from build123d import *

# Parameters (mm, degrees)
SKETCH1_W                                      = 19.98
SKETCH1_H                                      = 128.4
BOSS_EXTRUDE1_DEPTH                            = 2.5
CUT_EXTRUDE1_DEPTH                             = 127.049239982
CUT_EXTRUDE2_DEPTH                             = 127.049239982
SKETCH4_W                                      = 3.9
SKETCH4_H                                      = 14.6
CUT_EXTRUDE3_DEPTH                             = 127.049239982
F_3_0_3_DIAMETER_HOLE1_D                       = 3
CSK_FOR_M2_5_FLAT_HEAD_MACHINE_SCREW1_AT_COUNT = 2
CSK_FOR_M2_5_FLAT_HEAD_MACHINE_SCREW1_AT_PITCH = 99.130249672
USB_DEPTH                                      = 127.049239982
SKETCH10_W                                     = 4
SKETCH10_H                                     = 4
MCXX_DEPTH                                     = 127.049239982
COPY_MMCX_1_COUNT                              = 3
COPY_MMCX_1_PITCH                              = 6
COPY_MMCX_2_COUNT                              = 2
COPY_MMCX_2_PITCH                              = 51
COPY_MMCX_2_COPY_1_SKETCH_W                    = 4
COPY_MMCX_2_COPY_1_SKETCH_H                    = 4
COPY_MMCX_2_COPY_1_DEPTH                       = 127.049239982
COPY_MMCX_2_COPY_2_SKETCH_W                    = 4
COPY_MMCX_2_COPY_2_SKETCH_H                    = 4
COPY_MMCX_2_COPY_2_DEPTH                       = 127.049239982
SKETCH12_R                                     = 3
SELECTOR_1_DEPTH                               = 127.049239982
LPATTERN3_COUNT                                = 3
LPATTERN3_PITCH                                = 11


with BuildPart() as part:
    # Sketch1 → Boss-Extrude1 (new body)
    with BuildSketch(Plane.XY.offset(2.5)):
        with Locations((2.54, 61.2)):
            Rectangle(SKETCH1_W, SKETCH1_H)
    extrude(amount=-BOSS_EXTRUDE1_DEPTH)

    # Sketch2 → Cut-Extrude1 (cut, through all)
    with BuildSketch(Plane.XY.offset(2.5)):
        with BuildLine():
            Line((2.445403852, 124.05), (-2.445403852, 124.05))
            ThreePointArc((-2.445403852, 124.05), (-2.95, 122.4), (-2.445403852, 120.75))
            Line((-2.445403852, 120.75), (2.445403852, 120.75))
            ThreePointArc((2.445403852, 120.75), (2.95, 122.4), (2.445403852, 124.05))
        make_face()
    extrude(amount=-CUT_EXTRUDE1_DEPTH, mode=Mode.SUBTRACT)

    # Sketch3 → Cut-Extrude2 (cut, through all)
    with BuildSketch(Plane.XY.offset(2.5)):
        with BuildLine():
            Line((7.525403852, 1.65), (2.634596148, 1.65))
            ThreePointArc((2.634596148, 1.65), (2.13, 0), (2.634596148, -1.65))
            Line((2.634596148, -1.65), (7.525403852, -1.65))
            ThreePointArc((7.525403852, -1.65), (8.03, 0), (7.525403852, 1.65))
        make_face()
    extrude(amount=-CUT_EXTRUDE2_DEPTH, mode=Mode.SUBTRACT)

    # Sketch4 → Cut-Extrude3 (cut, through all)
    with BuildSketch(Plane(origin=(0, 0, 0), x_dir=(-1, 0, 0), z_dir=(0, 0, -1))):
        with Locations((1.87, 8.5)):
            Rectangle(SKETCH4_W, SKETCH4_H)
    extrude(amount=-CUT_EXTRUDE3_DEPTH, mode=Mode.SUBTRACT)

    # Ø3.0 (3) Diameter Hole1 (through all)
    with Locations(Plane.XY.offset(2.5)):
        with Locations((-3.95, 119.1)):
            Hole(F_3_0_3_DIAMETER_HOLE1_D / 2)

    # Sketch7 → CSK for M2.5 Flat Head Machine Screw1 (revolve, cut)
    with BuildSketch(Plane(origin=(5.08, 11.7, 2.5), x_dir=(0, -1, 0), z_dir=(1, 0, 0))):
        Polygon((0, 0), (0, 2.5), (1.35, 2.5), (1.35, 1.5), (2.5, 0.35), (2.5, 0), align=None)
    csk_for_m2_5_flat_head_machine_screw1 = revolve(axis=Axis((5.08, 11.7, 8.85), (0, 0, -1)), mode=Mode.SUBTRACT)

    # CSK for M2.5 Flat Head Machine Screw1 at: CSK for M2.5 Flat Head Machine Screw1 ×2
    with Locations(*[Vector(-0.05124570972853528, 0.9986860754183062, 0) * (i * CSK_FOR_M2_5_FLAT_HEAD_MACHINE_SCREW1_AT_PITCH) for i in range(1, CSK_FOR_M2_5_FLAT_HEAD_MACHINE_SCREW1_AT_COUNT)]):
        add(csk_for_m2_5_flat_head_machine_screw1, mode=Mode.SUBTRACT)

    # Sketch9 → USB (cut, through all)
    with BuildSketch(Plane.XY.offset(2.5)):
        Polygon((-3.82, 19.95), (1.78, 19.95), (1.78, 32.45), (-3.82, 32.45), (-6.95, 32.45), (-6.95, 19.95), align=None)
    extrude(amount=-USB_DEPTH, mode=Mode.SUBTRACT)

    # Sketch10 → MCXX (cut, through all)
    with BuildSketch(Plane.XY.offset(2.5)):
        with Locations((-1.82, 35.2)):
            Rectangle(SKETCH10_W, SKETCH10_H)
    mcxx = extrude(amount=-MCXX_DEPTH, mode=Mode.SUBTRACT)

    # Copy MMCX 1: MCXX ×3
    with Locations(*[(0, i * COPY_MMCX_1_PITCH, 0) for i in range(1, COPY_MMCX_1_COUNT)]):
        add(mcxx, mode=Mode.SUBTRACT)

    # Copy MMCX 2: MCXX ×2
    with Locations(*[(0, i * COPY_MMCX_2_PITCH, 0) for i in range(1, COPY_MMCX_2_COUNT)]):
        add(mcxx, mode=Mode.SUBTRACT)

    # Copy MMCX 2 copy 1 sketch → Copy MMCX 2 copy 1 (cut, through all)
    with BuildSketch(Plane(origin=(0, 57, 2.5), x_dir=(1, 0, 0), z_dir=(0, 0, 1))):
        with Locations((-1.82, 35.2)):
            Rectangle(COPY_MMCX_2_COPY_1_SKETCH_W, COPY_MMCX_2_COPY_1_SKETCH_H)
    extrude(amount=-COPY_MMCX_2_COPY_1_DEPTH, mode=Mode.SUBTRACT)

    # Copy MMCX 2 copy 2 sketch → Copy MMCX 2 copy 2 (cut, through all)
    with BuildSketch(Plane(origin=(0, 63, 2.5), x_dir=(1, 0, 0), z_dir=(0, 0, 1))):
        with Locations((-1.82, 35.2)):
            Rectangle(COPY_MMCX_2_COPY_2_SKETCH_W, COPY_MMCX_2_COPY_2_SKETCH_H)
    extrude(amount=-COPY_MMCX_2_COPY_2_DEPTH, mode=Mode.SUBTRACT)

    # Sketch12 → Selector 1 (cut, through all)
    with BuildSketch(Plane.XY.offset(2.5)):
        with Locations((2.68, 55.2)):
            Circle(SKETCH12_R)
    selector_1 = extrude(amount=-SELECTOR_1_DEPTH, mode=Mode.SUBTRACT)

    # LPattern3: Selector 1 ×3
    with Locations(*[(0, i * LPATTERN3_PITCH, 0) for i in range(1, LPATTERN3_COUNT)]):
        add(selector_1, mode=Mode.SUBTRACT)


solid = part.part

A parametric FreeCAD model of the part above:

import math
import FreeCAD as App
import Part
import Sketcher

V = App.Vector
Q = App.Units.Quantity

doc = App.newDocument("Part")
body = doc.addObject("PartDesign::Body", "Body")

# Sketch on XY plane
sketch1 = body.newObject("Sketcher::SketchObject", "Sketch")
sketch1.AttachmentSupport = (doc.getObject("XY_Plane"), [""])
sketch1.MapMode = "FlatFace"
sketch1.AttachmentOffset = App.Placement(V(0, 0, 2.5), App.Rotation())
sketch1.addGeometry(Part.LineSegment(V(-7, 125, 0), V(-7, -3, 0)), False)
sketch1.addGeometry(Part.LineSegment(V(-7, -3, 0), V(13, -3, 0)), False)
sketch1.addGeometry(Part.LineSegment(V(13, -3, 0), V(13, 125, 0)), False)
sketch1.addGeometry(Part.LineSegment(V(13, 125, 0), V(-7, 125, 0)), False)
sketch1.addConstraint(Sketcher.Constraint("Coincident", 0, 2, 1, 1))
sketch1.addConstraint(Sketcher.Constraint("Coincident", 1, 2, 2, 1))
sketch1.addConstraint(Sketcher.Constraint("Coincident", 2, 2, 3, 1))
sketch1.addConstraint(Sketcher.Constraint("Coincident", 3, 2, 0, 1))
sketch1.addConstraint(Sketcher.Constraint("Vertical", 0))
sketch1.addConstraint(Sketcher.Constraint("Horizontal", 1))
sketch1.addConstraint(Sketcher.Constraint("Vertical", 2))
sketch1.addConstraint(Sketcher.Constraint("Horizontal", 3))
sketch1.addConstraint(Sketcher.Constraint("DistanceY", 0, 2, 0, 1, Q("128.4 mm")))
sketch1.addConstraint(Sketcher.Constraint("DistanceY", 0, 2, -1, 1, Q("3 mm")))
sketch1.addConstraint(Sketcher.Constraint("DistanceX", 1, 1, 1, 2, Q("19.98 mm")))
sketch1.addConstraint(Sketcher.Constraint("DistanceX", 0, 2, -1, 1, Q("7.45 mm")))
pad1 = body.newObject("PartDesign::Pad", "Pad")
pad1.Profile = sketch1
pad1.Length = 2.5
pad1.Reversed = True

# Sketch on XY plane
sketch2 = body.newObject("Sketcher::SketchObject", "Sketch001")
sketch2.AttachmentSupport = (doc.getObject("XY_Plane"), [""])
sketch2.MapMode = "FlatFace"
sketch2.AttachmentOffset = App.Placement(V(0, 0, 2.5), App.Rotation())
sketch2.addGeometry(Part.LineSegment(V(2.4, 124, 0), V(-2.4, 124, 0)), False)
sketch2.addGeometry(Part.ArcOfCircle(Part.Circle(V(0, 122.4, 0), V(0, 0, 1), 2.9), math.radians(146), math.radians(214)), False)
sketch2.addGeometry(Part.LineSegment(V(-2.4, 120.8, 0), V(2.4, 120.8, 0)), False)
sketch2.addGeometry(Part.ArcOfCircle(Part.Circle(V(0, 122.4, 0), V(0, 0, 1), 2.9), math.radians(-34), math.radians(34)), False)
sketch2.addConstraint(Sketcher.Constraint("Coincident", 0, 2, 1, 1))
sketch2.addConstraint(Sketcher.Constraint("Coincident", 1, 2, 2, 1))
sketch2.addConstraint(Sketcher.Constraint("Coincident", 2, 2, 3, 1))
sketch2.addConstraint(Sketcher.Constraint("Coincident", 3, 2, 0, 1))
sketch2.addConstraint(Sketcher.Constraint("Horizontal", 0))
sketch2.addConstraint(Sketcher.Constraint("Horizontal", 2))
sketch2.addConstraint(Sketcher.Constraint("Coincident", 3, 3, 1, 3))
sketch2.addConstraint(Sketcher.Constraint("Equal", 1, 3))
sketch2.addConstraint(Sketcher.Constraint("PointOnObject", 1, 3, -2))
sketch2.addConstraint(Sketcher.Constraint("Vertical", 0, 2, 1, 2))
sketch2.addConstraint(Sketcher.Constraint("Radius", 1, Q("2.95 mm")))
sketch2.addConstraint(Sketcher.Constraint("DistanceY", -1, 1, 1, 3, Q("122.4 mm")))
sketch2.addConstraint(Sketcher.Constraint("DistanceY", 1, 2, 0, 2, Q("3.3 mm")))
pocket1 = body.newObject("PartDesign::Pocket", "Pocket")
pocket1.Profile = sketch2
pocket1.Type = "ThroughAll"

# Sketch on XY plane
sketch3 = body.newObject("Sketcher::SketchObject", "Sketch002")
sketch3.AttachmentSupport = (doc.getObject("XY_Plane"), [""])
sketch3.MapMode = "FlatFace"
sketch3.AttachmentOffset = App.Placement(V(0, 0, 2.5), App.Rotation())
sketch3.addGeometry(Part.LineSegment(V(7.5, 1.6, 0), V(2.6, 1.6, 0)), False)
sketch3.addGeometry(Part.ArcOfCircle(Part.Circle(V(5.1, 0, 0), V(0, 0, 1), 2.9), math.radians(146), math.radians(214)), False)
sketch3.addGeometry(Part.LineSegment(V(2.6, -1.6, 0), V(7.5, -1.6, 0)), False)
sketch3.addGeometry(Part.ArcOfCircle(Part.Circle(V(5.1, 0, 0), V(0, 0, 1), 2.9), math.radians(-34), math.radians(34)), False)
sketch3.addConstraint(Sketcher.Constraint("Coincident", 0, 2, 1, 1))
sketch3.addConstraint(Sketcher.Constraint("Coincident", 1, 2, 2, 1))
sketch3.addConstraint(Sketcher.Constraint("Coincident", 2, 2, 3, 1))
sketch3.addConstraint(Sketcher.Constraint("Coincident", 3, 2, 0, 1))
sketch3.addConstraint(Sketcher.Constraint("Horizontal", 0))
sketch3.addConstraint(Sketcher.Constraint("Horizontal", 2))
sketch3.addConstraint(Sketcher.Constraint("Coincident", 3, 3, 1, 3))
sketch3.addConstraint(Sketcher.Constraint("Equal", 1, 3))
sketch3.addConstraint(Sketcher.Constraint("Symmetric", 0, 2, 1, 2, -1))
sketch3.addConstraint(Sketcher.Constraint("Radius", 1, Q("2.95 mm")))
sketch3.addConstraint(Sketcher.Constraint("DistanceY", 1, 2, 0, 2, Q("3.3 mm")))
sketch3.addConstraint(Sketcher.Constraint("DistanceX", -1, 1, 1, 3, Q("5.08 mm")))
pocket2 = body.newObject("PartDesign::Pocket", "Pocket001")
pocket2.Profile = sketch3
pocket2.Type = "ThroughAll"

# Sketch on XY plane
sketch4 = body.newObject("Sketcher::SketchObject", "Sketch003")
sketch4.AttachmentSupport = (doc.getObject("XY_Plane"), [""])
sketch4.MapMode = "FlatFace"
sketch4.addGeometry(Part.LineSegment(V(0.1, 15.8, 0), V(0.1, 1.2, 0)), False)
sketch4.addGeometry(Part.LineSegment(V(0.1, 1.2, 0), V(-3.8, 1.2, 0)), False)
sketch4.addGeometry(Part.LineSegment(V(-3.8, 1.2, 0), V(-3.8, 15.8, 0)), False)
sketch4.addGeometry(Part.LineSegment(V(-3.8, 15.8, 0), V(0.1, 15.8, 0)), False)
sketch4.addConstraint(Sketcher.Constraint("Coincident", 0, 2, 1, 1))
sketch4.addConstraint(Sketcher.Constraint("Coincident", 1, 2, 2, 1))
sketch4.addConstraint(Sketcher.Constraint("Coincident", 2, 2, 3, 1))
sketch4.addConstraint(Sketcher.Constraint("Coincident", 3, 2, 0, 1))
sketch4.addConstraint(Sketcher.Constraint("Vertical", 0))
sketch4.addConstraint(Sketcher.Constraint("Horizontal", 1))
sketch4.addConstraint(Sketcher.Constraint("Vertical", 2))
sketch4.addConstraint(Sketcher.Constraint("Horizontal", 3))
sketch4.addConstraint(Sketcher.Constraint("DistanceX", 1, 2, 1, 1, Q("3.9 mm")))
sketch4.addConstraint(Sketcher.Constraint("DistanceY", 0, 2, 0, 1, Q("14.6 mm")))
sketch4.addConstraint(Sketcher.Constraint("DistanceY", -1, 1, 0, 2, Q("1.2 mm")))
sketch4.addConstraint(Sketcher.Constraint("DistanceX", -1, 1, 0, 2, Q("0.08 mm")))
pocket3 = body.newObject("PartDesign::Pocket", "Pocket002")
pocket3.Profile = sketch4
pocket3.Type = "ThroughAll"
pocket3.Reversed = True

# Sketch on XY plane
sketch5 = body.newObject("Sketcher::SketchObject", "Sketch004")
sketch5.AttachmentSupport = (doc.getObject("XY_Plane"), [""])
sketch5.MapMode = "FlatFace"
sketch5.AttachmentOffset = App.Placement(V(0, 0, 2.5), App.Rotation())
sketch5.addGeometry(Part.Circle(V(-4, 119.1, 0), V(0, 0, 1), 1.5), False)
sketch5.addConstraint(Sketcher.Constraint("Diameter", 0, Q("3 mm")))
sketch5.addConstraint(Sketcher.Constraint("DistanceY", -1, 1, 0, 3, Q("119.1 mm")))
sketch5.addConstraint(Sketcher.Constraint("DistanceX", 0, 3, -1, 1, Q("3.95 mm")))
doc.recompute()
hole = body.newObject("PartDesign::Hole", "Hole")
hole.Profile = sketch5
hole.ThreadType = "None"
hole.Diameter = 3
hole.DepthType = "ThroughAll"

# Sketch on YZ plane
sketch6 = body.newObject("Sketcher::SketchObject", "Sketch005")
sketch6.AttachmentSupport = (doc.getObject("YZ_Plane"), [""])
sketch6.MapMode = "FlatFace"
sketch6.AttachmentOffset = App.Placement(V(0, 0, 5.08), App.Rotation())
sketch6.addGeometry(Part.LineSegment(V(11.7, 0, 0), V(11.7, 2.5, 0)), False)
sketch6.addGeometry(Part.LineSegment(V(11.7, 2.5, 0), V(9.2, 2.5, 0)), False)
sketch6.addGeometry(Part.LineSegment(V(9.2, 2.5, 0), V(9.2, 2.15, 0)), False)
sketch6.addGeometry(Part.LineSegment(V(9.2, 2.15, 0), V(10.35, 1, 0)), False)
sketch6.addGeometry(Part.LineSegment(V(10.35, 1, 0), V(10.35, 0, 0)), False)
sketch6.addGeometry(Part.LineSegment(V(10.35, 0, 0), V(11.7, 0, 0)), False)
sketch6.addGeometry(Part.LineSegment(V(11.7, 2.5, 0), V(11.7, 0, 0)), True)  # axis
sketch6.addConstraint(Sketcher.Constraint("Coincident", 0, 2, 1, 1))
sketch6.addConstraint(Sketcher.Constraint("Coincident", 1, 2, 2, 1))
sketch6.addConstraint(Sketcher.Constraint("Coincident", 2, 2, 3, 1))
sketch6.addConstraint(Sketcher.Constraint("Coincident", 3, 2, 4, 1))
sketch6.addConstraint(Sketcher.Constraint("Coincident", 4, 2, 5, 1))
sketch6.addConstraint(Sketcher.Constraint("Coincident", 5, 2, 0, 1))
sketch6.addConstraint(Sketcher.Constraint("Vertical", 0))
sketch6.addConstraint(Sketcher.Constraint("Horizontal", 1))
sketch6.addConstraint(Sketcher.Constraint("Vertical", 2))
sketch6.addConstraint(Sketcher.Constraint("Vertical", 4))
sketch6.addConstraint(Sketcher.Constraint("Horizontal", 5))
sketch6.addConstraint(Sketcher.Constraint("Vertical", 6))
sketch6.addConstraint(Sketcher.Constraint("Coincident", 6, 1, 0, 2))
sketch6.addConstraint(Sketcher.Constraint("PointOnObject", 4, 2, -1))
sketch6.addConstraint(Sketcher.Constraint("PointOnObject", 6, 2, -1))
sketch6.addConstraint(Sketcher.Constraint("Equal", 1, 0))
sketch6.addConstraint(Sketcher.Constraint("DistanceY", 4, 2, 4, 1, Q("1 mm")))
sketch6.addConstraint(Sketcher.Constraint("Angle", 3, Q("-45 deg")))
sketch6.addConstraint(Sketcher.Constraint("DistanceX", 1, 2, 1, 1, Q("2.5 mm")))
sketch6.addConstraint(Sketcher.Constraint("DistanceX", 5, 1, 5, 2, Q("1.35 mm")))
sketch6.addConstraint(Sketcher.Constraint("DistanceX", -1, 1, 0, 2, Q("11.7 mm")))
groove = body.newObject("PartDesign::Groove", "Groove")
groove.Profile = sketch6
groove.ReferenceAxis = (sketch6, ["Axis0"])
groove.Angle = 360
doc.recompute()

datumline = body.newObject("PartDesign::Line", "DatumLine")
datumline.Placement = App.Placement(V(0, 0, 0), App.Rotation(V(0, 0, 1), V(-0.05124571, 0.998686075, 0)))
linearpattern = body.newObject("PartDesign::LinearPattern", "LinearPattern")
linearpattern.Originals = [groove]
linearpattern.Direction = (datumline, [""])
linearpattern.Mode = "offset"
linearpattern.Offset = 99.13025
linearpattern.Occurrences = 2
body.Tip = linearpattern

# Sketch on XY plane
sketch7 = body.newObject("Sketcher::SketchObject", "Sketch006")
sketch7.AttachmentSupport = (doc.getObject("XY_Plane"), [""])
sketch7.MapMode = "FlatFace"
sketch7.AttachmentOffset = App.Placement(V(0, 0, 2.5), App.Rotation())
sketch7.addGeometry(Part.LineSegment(V(2, 20, 0), V(2, 32, 0)), False)
sketch7.addGeometry(Part.LineSegment(V(2, 32, 0), V(-7, 32, 0)), False)
sketch7.addGeometry(Part.LineSegment(V(-7, 32, 0), V(-7, 20, 0)), False)
sketch7.addGeometry(Part.LineSegment(V(-7, 20, 0), V(2, 20, 0)), False)
sketch7.addConstraint(Sketcher.Constraint("Coincident", 0, 2, 1, 1))
sketch7.addConstraint(Sketcher.Constraint("Coincident", 1, 2, 2, 1))
sketch7.addConstraint(Sketcher.Constraint("Coincident", 2, 2, 3, 1))
sketch7.addConstraint(Sketcher.Constraint("Coincident", 3, 2, 0, 1))
sketch7.addConstraint(Sketcher.Constraint("Vertical", 0))
sketch7.addConstraint(Sketcher.Constraint("Horizontal", 1))
sketch7.addConstraint(Sketcher.Constraint("Vertical", 2))
sketch7.addConstraint(Sketcher.Constraint("Horizontal", 3))
sketch7.addConstraint(Sketcher.Constraint("DistanceY", 0, 1, 0, 2, Q("12.5 mm")))
sketch7.addConstraint(Sketcher.Constraint("DistanceX", 1, 2, 1, 1, Q("8.73 mm")))
sketch7.addConstraint(Sketcher.Constraint("DistanceX", -1, 1, 0, 2, Q("1.78 mm")))
sketch7.addConstraint(Sketcher.Constraint("DistanceY", -1, 1, 0, 2, Q("32.45 mm")))
pocket4 = body.newObject("PartDesign::Pocket", "Pocket003")
pocket4.Profile = sketch7
pocket4.Type = "ThroughAll"

# Sketch on XY plane
sketch8 = body.newObject("Sketcher::SketchObject", "Sketch007")
sketch8.AttachmentSupport = (doc.getObject("XY_Plane"), [""])
sketch8.MapMode = "FlatFace"
sketch8.AttachmentOffset = App.Placement(V(0, 0, 2.5), App.Rotation())
sketch8.addGeometry(Part.LineSegment(V(-3.8, 37.2, 0), V(-3.8, 33.2, 0)), False)
sketch8.addGeometry(Part.LineSegment(V(-3.8, 33.2, 0), V(0.2, 33.2, 0)), False)
sketch8.addGeometry(Part.LineSegment(V(0.2, 33.2, 0), V(0.2, 37.2, 0)), False)
sketch8.addGeometry(Part.LineSegment(V(0.2, 37.2, 0), V(-3.8, 37.2, 0)), False)
sketch8.addConstraint(Sketcher.Constraint("Coincident", 0, 2, 1, 1))
sketch8.addConstraint(Sketcher.Constraint("Coincident", 1, 2, 2, 1))
sketch8.addConstraint(Sketcher.Constraint("Coincident", 2, 2, 3, 1))
sketch8.addConstraint(Sketcher.Constraint("Coincident", 3, 2, 0, 1))
sketch8.addConstraint(Sketcher.Constraint("Vertical", 0))
sketch8.addConstraint(Sketcher.Constraint("Horizontal", 1))
sketch8.addConstraint(Sketcher.Constraint("Vertical", 2))
sketch8.addConstraint(Sketcher.Constraint("Horizontal", 3))
sketch8.addConstraint(Sketcher.Constraint("Equal", 3, 0))
sketch8.addConstraint(Sketcher.Constraint("DistanceX", 1, 1, 1, 2, Q("4 mm")))
sketch8.addConstraint(Sketcher.Constraint("DistanceY", -1, 1, 0, 2, Q("33.2 mm")))
sketch8.addConstraint(Sketcher.Constraint("DistanceX", 0, 2, -1, 1, Q("3.82 mm")))
pocket5 = body.newObject("PartDesign::Pocket", "Pocket004")
pocket5.Profile = sketch8
pocket5.Type = "ThroughAll"
doc.recompute()

linearpattern2 = body.newObject("PartDesign::LinearPattern", "LinearPattern001")
linearpattern2.Originals = [pocket5]
linearpattern2.Direction = (doc.getObject("Y_Axis"), [""])
linearpattern2.Mode = "offset"
linearpattern2.Offset = 6
linearpattern2.Occurrences = 3
body.Tip = linearpattern2
doc.recompute()

linearpattern3 = body.newObject("PartDesign::LinearPattern", "LinearPattern002")
linearpattern3.Originals = [pocket5]
linearpattern3.Direction = (doc.getObject("Y_Axis"), [""])
linearpattern3.Mode = "offset"
linearpattern3.Offset = 51
linearpattern3.Occurrences = 2
body.Tip = linearpattern3

# Sketch on XY plane
sketch9 = body.newObject("Sketcher::SketchObject", "Sketch008")
sketch9.AttachmentSupport = (doc.getObject("XY_Plane"), [""])
sketch9.MapMode = "FlatFace"
sketch9.AttachmentOffset = App.Placement(V(0, 0, 2.5), App.Rotation())
sketch9.addGeometry(Part.LineSegment(V(-3.8, 94.2, 0), V(-3.8, 90.2, 0)), False)
sketch9.addGeometry(Part.LineSegment(V(-3.8, 90.2, 0), V(0.2, 90.2, 0)), False)
sketch9.addGeometry(Part.LineSegment(V(0.2, 90.2, 0), V(0.2, 94.2, 0)), False)
sketch9.addGeometry(Part.LineSegment(V(0.2, 94.2, 0), V(-3.8, 94.2, 0)), False)
sketch9.addConstraint(Sketcher.Constraint("Coincident", 0, 2, 1, 1))
sketch9.addConstraint(Sketcher.Constraint("Coincident", 1, 2, 2, 1))
sketch9.addConstraint(Sketcher.Constraint("Coincident", 2, 2, 3, 1))
sketch9.addConstraint(Sketcher.Constraint("Coincident", 3, 2, 0, 1))
sketch9.addConstraint(Sketcher.Constraint("Vertical", 0))
sketch9.addConstraint(Sketcher.Constraint("Horizontal", 1))
sketch9.addConstraint(Sketcher.Constraint("Vertical", 2))
sketch9.addConstraint(Sketcher.Constraint("Horizontal", 3))
sketch9.addConstraint(Sketcher.Constraint("Equal", 3, 0))
sketch9.addConstraint(Sketcher.Constraint("DistanceX", 1, 1, 1, 2, Q("4 mm")))
sketch9.addConstraint(Sketcher.Constraint("DistanceY", -1, 1, 0, 2, Q("90.2 mm")))
sketch9.addConstraint(Sketcher.Constraint("DistanceX", 0, 2, -1, 1, Q("3.82 mm")))
pocket6 = body.newObject("PartDesign::Pocket", "Pocket005")
pocket6.Profile = sketch9
pocket6.Type = "ThroughAll"

# Sketch on XY plane
sketch10 = body.newObject("Sketcher::SketchObject", "Sketch009")
sketch10.AttachmentSupport = (doc.getObject("XY_Plane"), [""])
sketch10.MapMode = "FlatFace"
sketch10.AttachmentOffset = App.Placement(V(0, 0, 2.5), App.Rotation())
sketch10.addGeometry(Part.LineSegment(V(-3.8, 100.2, 0), V(-3.8, 96.2, 0)), False)
sketch10.addGeometry(Part.LineSegment(V(-3.8, 96.2, 0), V(0.2, 96.2, 0)), False)
sketch10.addGeometry(Part.LineSegment(V(0.2, 96.2, 0), V(0.2, 100.2, 0)), False)
sketch10.addGeometry(Part.LineSegment(V(0.2, 100.2, 0), V(-3.8, 100.2, 0)), False)
sketch10.addConstraint(Sketcher.Constraint("Coincident", 0, 2, 1, 1))
sketch10.addConstraint(Sketcher.Constraint("Coincident", 1, 2, 2, 1))
sketch10.addConstraint(Sketcher.Constraint("Coincident", 2, 2, 3, 1))
sketch10.addConstraint(Sketcher.Constraint("Coincident", 3, 2, 0, 1))
sketch10.addConstraint(Sketcher.Constraint("Vertical", 0))
sketch10.addConstraint(Sketcher.Constraint("Horizontal", 1))
sketch10.addConstraint(Sketcher.Constraint("Vertical", 2))
sketch10.addConstraint(Sketcher.Constraint("Horizontal", 3))
sketch10.addConstraint(Sketcher.Constraint("Equal", 3, 0))
sketch10.addConstraint(Sketcher.Constraint("DistanceX", 1, 1, 1, 2, Q("4 mm")))
sketch10.addConstraint(Sketcher.Constraint("DistanceY", -1, 1, 0, 2, Q("96.2 mm")))
sketch10.addConstraint(Sketcher.Constraint("DistanceX", 0, 2, -1, 1, Q("3.82 mm")))
pocket7 = body.newObject("PartDesign::Pocket", "Pocket006")
pocket7.Profile = sketch10
pocket7.Type = "ThroughAll"

# Sketch on XY plane
sketch11 = body.newObject("Sketcher::SketchObject", "Sketch010")
sketch11.AttachmentSupport = (doc.getObject("XY_Plane"), [""])
sketch11.MapMode = "FlatFace"
sketch11.AttachmentOffset = App.Placement(V(0, 0, 2.5), App.Rotation())
sketch11.addGeometry(Part.Circle(V(2.7, 55.2, 0), V(0, 0, 1), 3), False)
sketch11.addConstraint(Sketcher.Constraint("Diameter", 0, Q("6 mm")))
sketch11.addConstraint(Sketcher.Constraint("DistanceY", -1, 1, 0, 3, Q("55.2 mm")))
sketch11.addConstraint(Sketcher.Constraint("DistanceX", -1, 1, 0, 3, Q("2.68 mm")))
pocket8 = body.newObject("PartDesign::Pocket", "Pocket007")
pocket8.Profile = sketch11
pocket8.Type = "ThroughAll"
doc.recompute()

linearpattern4 = body.newObject("PartDesign::LinearPattern", "LinearPattern003")
linearpattern4.Originals = [pocket8]
linearpattern4.Direction = (doc.getObject("Y_Axis"), [""])
linearpattern4.Mode = "offset"
linearpattern4.Offset = 11
linearpattern4.Occurrences = 3
body.Tip = linearpattern4

doc.recompute()
